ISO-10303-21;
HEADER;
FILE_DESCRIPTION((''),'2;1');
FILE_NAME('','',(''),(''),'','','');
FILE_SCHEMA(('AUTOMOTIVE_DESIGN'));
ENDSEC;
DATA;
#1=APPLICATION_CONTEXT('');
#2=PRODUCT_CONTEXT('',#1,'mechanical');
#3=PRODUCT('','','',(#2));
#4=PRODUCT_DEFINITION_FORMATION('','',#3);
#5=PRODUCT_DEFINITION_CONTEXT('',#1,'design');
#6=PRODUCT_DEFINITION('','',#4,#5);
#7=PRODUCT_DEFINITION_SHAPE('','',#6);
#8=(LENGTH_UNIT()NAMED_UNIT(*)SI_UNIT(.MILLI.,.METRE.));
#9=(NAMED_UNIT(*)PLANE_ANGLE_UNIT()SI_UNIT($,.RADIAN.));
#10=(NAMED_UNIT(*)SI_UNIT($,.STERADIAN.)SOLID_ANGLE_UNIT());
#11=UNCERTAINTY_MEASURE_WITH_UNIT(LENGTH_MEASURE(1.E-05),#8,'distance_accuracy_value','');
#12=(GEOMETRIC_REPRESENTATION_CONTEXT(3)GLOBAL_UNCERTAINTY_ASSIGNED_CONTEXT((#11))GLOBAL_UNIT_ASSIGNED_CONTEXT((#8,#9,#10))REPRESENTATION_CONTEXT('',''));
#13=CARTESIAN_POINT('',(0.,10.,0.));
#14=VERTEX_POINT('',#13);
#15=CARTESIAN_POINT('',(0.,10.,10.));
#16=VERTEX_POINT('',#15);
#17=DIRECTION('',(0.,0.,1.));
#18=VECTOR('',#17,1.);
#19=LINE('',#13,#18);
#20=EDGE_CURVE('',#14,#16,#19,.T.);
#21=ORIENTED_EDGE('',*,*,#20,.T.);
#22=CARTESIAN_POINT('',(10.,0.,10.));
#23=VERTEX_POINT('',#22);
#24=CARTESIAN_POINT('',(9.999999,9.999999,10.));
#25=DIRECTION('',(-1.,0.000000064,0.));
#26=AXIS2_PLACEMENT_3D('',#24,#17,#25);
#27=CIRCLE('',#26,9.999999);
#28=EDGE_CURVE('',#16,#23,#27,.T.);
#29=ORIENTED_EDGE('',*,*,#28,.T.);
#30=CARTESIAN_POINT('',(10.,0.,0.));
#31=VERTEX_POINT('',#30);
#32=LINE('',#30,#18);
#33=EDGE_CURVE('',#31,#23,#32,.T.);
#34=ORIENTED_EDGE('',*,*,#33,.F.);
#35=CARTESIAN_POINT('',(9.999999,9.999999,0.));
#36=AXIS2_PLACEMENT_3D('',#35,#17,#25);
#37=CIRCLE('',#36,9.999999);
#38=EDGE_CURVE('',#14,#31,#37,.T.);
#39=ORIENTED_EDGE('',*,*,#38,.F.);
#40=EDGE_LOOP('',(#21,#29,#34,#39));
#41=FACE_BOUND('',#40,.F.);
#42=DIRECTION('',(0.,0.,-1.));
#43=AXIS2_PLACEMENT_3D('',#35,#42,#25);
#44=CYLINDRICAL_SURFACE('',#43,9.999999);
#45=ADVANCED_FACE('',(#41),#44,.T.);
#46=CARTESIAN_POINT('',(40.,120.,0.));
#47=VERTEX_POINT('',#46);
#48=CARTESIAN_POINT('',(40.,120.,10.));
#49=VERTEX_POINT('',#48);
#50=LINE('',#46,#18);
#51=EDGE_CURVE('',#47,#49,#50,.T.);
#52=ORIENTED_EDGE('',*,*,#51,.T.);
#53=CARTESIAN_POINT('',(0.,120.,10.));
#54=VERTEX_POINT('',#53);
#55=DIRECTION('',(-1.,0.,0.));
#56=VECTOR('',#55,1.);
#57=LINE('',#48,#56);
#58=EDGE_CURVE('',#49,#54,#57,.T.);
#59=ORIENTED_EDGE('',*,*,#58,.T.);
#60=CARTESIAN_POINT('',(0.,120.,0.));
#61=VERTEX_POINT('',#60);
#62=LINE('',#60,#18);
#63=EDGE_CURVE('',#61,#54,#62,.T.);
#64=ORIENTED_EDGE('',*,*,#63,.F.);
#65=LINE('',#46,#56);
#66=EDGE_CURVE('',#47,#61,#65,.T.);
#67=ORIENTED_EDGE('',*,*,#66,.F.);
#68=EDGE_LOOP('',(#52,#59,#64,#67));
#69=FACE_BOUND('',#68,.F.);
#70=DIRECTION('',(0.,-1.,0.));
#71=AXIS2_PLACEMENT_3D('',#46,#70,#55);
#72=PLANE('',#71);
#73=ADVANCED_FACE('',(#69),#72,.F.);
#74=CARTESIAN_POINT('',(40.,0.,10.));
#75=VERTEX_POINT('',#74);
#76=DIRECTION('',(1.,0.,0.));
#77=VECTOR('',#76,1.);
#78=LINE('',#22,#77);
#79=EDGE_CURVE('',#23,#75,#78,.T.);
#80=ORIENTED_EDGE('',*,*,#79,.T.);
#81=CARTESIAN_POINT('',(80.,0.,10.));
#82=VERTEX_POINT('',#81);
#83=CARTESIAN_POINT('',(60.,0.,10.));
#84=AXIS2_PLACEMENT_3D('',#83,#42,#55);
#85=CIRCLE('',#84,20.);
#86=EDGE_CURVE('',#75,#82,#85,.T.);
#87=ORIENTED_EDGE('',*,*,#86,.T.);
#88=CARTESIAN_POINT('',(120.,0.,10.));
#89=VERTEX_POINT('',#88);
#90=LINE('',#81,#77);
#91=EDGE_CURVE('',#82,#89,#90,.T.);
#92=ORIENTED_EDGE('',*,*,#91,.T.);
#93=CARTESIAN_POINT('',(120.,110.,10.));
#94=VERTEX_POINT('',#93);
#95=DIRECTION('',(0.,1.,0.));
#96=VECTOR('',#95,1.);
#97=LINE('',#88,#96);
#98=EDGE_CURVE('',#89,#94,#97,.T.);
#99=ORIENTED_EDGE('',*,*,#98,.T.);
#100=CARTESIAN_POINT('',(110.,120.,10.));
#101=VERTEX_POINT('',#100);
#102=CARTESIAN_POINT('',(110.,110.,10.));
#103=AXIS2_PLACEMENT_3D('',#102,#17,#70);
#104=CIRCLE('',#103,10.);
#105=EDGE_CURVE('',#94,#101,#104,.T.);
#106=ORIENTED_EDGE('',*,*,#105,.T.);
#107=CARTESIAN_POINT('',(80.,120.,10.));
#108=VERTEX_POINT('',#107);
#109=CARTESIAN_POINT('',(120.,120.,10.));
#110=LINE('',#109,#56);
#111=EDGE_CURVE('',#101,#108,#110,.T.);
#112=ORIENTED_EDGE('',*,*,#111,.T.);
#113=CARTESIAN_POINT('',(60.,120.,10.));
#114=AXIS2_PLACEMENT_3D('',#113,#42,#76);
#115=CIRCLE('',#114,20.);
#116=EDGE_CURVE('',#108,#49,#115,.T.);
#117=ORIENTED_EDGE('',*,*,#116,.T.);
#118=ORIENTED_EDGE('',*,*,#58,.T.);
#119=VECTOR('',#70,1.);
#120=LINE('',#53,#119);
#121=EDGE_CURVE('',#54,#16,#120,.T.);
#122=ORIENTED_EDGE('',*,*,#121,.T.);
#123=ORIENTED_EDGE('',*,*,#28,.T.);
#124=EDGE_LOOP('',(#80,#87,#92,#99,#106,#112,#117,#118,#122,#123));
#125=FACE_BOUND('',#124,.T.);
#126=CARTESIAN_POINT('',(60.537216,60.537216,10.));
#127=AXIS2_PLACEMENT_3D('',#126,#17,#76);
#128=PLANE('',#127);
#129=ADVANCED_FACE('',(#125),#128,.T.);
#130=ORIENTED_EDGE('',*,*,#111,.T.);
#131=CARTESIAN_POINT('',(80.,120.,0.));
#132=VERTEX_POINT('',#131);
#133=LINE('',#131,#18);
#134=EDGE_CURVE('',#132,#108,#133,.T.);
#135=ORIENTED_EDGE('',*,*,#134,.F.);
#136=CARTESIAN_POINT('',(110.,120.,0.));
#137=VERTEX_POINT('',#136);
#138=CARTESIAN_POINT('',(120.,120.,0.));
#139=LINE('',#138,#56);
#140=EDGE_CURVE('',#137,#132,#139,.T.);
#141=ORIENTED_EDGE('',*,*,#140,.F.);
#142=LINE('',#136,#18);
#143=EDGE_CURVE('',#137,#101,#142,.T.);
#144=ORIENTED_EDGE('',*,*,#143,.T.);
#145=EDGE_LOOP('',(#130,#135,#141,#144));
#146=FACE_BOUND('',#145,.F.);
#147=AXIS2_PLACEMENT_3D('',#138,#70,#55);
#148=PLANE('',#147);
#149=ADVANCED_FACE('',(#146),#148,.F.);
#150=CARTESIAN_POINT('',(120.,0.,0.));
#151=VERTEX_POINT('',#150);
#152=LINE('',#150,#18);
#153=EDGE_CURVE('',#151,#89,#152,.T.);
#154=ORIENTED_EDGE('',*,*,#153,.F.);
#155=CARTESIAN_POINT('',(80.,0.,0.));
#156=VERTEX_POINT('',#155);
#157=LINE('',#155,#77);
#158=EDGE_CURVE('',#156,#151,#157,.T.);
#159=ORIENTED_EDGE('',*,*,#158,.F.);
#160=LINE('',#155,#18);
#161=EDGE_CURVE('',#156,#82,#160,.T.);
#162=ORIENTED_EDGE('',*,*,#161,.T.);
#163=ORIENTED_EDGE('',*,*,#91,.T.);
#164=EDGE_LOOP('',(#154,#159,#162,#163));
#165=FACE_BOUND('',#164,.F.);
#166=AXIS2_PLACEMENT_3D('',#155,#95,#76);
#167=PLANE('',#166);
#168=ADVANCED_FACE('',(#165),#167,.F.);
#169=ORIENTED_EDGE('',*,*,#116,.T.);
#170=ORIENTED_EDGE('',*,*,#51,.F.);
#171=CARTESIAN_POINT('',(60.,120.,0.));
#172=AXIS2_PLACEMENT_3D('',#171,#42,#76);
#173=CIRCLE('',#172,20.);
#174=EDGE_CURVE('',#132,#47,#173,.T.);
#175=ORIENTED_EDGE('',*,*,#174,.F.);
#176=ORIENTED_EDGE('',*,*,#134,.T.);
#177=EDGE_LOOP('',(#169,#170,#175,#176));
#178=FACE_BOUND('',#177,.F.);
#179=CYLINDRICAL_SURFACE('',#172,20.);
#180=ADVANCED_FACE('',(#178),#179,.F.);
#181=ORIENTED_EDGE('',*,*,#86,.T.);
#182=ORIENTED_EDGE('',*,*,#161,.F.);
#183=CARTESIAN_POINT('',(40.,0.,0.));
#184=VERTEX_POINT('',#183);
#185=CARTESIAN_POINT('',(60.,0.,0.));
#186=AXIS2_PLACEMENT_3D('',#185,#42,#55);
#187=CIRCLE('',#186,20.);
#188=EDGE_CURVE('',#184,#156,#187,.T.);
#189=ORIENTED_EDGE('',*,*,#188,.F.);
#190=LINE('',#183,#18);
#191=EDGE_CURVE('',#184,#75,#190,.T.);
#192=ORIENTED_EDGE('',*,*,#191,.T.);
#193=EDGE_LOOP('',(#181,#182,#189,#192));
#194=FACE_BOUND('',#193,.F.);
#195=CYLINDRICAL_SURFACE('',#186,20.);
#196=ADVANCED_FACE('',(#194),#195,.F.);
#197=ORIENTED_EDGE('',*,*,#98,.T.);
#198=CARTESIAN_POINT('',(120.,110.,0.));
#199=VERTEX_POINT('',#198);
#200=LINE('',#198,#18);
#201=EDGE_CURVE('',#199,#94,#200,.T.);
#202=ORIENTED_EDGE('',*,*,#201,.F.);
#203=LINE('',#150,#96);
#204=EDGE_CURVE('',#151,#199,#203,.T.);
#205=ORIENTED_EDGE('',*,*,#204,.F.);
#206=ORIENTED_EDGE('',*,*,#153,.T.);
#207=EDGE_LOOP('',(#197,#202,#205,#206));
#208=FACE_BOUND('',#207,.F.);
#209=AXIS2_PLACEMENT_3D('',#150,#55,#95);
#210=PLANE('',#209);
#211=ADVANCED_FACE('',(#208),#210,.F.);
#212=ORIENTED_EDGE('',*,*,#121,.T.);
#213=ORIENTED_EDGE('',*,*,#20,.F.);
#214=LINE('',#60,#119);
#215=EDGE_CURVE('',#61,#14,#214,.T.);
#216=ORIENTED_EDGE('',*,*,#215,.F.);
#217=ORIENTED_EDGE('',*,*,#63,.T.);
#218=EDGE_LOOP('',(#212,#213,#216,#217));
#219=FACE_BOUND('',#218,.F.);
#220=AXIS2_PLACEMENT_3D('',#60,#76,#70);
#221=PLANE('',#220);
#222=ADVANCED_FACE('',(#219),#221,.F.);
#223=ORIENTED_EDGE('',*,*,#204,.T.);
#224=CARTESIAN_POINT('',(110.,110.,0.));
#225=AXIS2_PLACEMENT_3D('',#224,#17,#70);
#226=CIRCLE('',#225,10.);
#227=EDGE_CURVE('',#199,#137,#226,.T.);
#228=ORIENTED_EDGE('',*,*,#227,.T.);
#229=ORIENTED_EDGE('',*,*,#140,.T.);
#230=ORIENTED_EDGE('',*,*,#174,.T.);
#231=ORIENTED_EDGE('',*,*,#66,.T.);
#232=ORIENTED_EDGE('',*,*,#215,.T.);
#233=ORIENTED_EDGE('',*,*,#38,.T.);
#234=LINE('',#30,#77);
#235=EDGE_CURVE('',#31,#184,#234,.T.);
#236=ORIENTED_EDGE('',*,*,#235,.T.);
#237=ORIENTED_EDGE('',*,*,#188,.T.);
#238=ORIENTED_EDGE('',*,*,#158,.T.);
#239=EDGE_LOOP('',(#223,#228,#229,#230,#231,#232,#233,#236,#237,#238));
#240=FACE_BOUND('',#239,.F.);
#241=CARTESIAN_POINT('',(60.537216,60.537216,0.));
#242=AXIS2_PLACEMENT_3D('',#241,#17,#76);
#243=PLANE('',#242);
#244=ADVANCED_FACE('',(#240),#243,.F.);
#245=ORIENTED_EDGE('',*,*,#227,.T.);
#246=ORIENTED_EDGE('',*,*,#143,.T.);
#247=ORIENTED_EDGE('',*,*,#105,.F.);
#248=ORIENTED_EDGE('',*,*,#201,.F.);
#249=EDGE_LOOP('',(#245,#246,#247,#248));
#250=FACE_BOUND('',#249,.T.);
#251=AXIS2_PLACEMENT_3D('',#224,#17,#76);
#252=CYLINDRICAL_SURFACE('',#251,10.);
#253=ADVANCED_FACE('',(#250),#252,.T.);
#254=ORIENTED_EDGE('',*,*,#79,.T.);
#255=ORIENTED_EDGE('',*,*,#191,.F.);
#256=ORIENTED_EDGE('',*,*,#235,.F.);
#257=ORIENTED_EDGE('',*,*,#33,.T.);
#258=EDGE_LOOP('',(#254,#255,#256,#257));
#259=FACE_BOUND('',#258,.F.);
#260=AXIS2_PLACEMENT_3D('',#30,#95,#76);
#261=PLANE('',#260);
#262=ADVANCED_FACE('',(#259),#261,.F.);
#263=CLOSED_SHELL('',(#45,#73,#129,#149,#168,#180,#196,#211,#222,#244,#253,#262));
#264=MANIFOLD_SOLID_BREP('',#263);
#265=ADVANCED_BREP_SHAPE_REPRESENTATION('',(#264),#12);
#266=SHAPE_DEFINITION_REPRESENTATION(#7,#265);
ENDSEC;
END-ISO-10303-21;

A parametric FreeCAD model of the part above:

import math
import FreeCAD as App
import Part
import Sketcher

V = App.Vector


def edges_at(feature, points):
    """Names of the edges that pass closest to the given points."""
    edges = feature.Shape.Edges
    near = lambda p: min(range(len(edges)), key=lambda i: edges[i].distToShape(Part.Vertex(*p))[0])
    return sorted({f"Edge{near(p) + 1}" for p in points})

doc = App.newDocument("Part")
body = doc.addObject("PartDesign::Body", "Body")

# Sketch on XY plane
sketch1 = doc.addObject("Sketcher::SketchObject", "Sketch")
body.addObject(sketch1)
sketch1.AttachmentSupport = (doc.XY_Plane, [""])
sketch1.MapMode = "FlatFace"
sketch1.addGeometry(Part.ArcOfCircle(Part.Circle(V(10, 10, 0), V(0, 0, 1), 10), math.radians(180), math.radians(270)), False)
sketch1.addGeometry(Part.LineSegment(V(10, 0, 0), V(40, 0, 0)), False)
sketch1.addGeometry(Part.ArcOfCircle(Part.Circle(V(60, 0, 0), V(0, 0, 1), 20), math.radians(0), math.radians(180)), False)
sketch1.addGeometry(Part.LineSegment(V(80, 0, 0), V(120, 0, 0)), False)
sketch1.addGeometry(Part.LineSegment(V(120, 0, 0), V(120, 120, 0)), False)
sketch1.addGeometry(Part.LineSegment(V(120, 120, 0), V(80, 120, 0)), False)
sketch1.addGeometry(Part.ArcOfCircle(Part.Circle(V(60, 120, 0), V(0, 0, 1), 20), math.radians(180), math.radians(360)), False)
sketch1.addGeometry(Part.LineSegment(V(40, 120, 0), V(0, 120, 0)), False)
sketch1.addGeometry(Part.LineSegment(V(0, 120, 0), V(0, 10, 0)), False)
sketch1.addConstraint(Sketcher.Constraint("Tangent", 0, 2, 1, 1))
sketch1.addConstraint(Sketcher.Constraint("Coincident", 1, 2, 2, 2))
sketch1.addConstraint(Sketcher.Constraint("Coincident", 2, 1, 3, 1))
sketch1.addConstraint(Sketcher.Constraint("Coincident", 3, 2, 4, 1))
sketch1.addConstraint(Sketcher.Constraint("Coincident", 4, 2, 5, 1))
sketch1.addConstraint(Sketcher.Constraint("Coincident", 5, 2, 6, 2))
sketch1.addConstraint(Sketcher.Constraint("Coincident", 6, 1, 7, 1))
sketch1.addConstraint(Sketcher.Constraint("Coincident", 7, 2, 8, 1))
sketch1.addConstraint(Sketcher.Constraint("Tangent", 8, 2, 0, 1))
sketch1.addConstraint(Sketcher.Constraint("Horizontal", 1))
sketch1.addConstraint(Sketcher.Constraint("Horizontal", 3))
sketch1.addConstraint(Sketcher.Constraint("Vertical", 4))
sketch1.addConstraint(Sketcher.Constraint("Horizontal", 5))
sketch1.addConstraint(Sketcher.Constraint("Horizontal", 7))
sketch1.addConstraint(Sketcher.Constraint("Vertical", 8))
sketch1.addConstraint(Sketcher.Constraint("Equal", 2, 6))
sketch1.addConstraint(Sketcher.Constraint("PointOnObject", 2, 3, -1))
sketch1.addConstraint(Sketcher.Constraint("PointOnObject", 0, 2, -1))
sketch1.addConstraint(Sketcher.Constraint("PointOnObject", 2, 1, -1))
sketch1.addConstraint(Sketcher.Constraint("PointOnObject", 7, 2, -2))
sketch1.addConstraint(Sketcher.Constraint("Horizontal", 6, 3, 4, 2))
sketch1.addConstraint(Sketcher.Constraint("Horizontal", 5, 2, 6, 1))
sketch1.addConstraint(Sketcher.Constraint("Vertical", 2, 3, 6, 3))
sketch1.addConstraint(Sketcher.Constraint("Equal", 5, 7))
sketch1.addConstraint(Sketcher.Constraint("Radius", 0, 9.999999))
sketch1.addConstraint(Sketcher.Constraint("Radius", 2, 20.0))
sketch1.addConstraint(Sketcher.Constraint("DistanceX", 1, 1, 1, 2, 30.0))
sketch1.addConstraint(Sketcher.Constraint("DistanceY", 4, 1, 4, 2, 120.0))
pad1 = doc.addObject("PartDesign::Pad", "Pad")
body.addObject(pad1)
pad1.Profile = sketch1
pad1.Length = 10
doc.recompute()

fillet = doc.addObject("PartDesign::Fillet", "Fillet")
body.addObject(fillet)
fillet.Base = (pad1, edges_at(pad1, [(120, 120, 5)]))
fillet.Radius = 10

doc.recompute()
